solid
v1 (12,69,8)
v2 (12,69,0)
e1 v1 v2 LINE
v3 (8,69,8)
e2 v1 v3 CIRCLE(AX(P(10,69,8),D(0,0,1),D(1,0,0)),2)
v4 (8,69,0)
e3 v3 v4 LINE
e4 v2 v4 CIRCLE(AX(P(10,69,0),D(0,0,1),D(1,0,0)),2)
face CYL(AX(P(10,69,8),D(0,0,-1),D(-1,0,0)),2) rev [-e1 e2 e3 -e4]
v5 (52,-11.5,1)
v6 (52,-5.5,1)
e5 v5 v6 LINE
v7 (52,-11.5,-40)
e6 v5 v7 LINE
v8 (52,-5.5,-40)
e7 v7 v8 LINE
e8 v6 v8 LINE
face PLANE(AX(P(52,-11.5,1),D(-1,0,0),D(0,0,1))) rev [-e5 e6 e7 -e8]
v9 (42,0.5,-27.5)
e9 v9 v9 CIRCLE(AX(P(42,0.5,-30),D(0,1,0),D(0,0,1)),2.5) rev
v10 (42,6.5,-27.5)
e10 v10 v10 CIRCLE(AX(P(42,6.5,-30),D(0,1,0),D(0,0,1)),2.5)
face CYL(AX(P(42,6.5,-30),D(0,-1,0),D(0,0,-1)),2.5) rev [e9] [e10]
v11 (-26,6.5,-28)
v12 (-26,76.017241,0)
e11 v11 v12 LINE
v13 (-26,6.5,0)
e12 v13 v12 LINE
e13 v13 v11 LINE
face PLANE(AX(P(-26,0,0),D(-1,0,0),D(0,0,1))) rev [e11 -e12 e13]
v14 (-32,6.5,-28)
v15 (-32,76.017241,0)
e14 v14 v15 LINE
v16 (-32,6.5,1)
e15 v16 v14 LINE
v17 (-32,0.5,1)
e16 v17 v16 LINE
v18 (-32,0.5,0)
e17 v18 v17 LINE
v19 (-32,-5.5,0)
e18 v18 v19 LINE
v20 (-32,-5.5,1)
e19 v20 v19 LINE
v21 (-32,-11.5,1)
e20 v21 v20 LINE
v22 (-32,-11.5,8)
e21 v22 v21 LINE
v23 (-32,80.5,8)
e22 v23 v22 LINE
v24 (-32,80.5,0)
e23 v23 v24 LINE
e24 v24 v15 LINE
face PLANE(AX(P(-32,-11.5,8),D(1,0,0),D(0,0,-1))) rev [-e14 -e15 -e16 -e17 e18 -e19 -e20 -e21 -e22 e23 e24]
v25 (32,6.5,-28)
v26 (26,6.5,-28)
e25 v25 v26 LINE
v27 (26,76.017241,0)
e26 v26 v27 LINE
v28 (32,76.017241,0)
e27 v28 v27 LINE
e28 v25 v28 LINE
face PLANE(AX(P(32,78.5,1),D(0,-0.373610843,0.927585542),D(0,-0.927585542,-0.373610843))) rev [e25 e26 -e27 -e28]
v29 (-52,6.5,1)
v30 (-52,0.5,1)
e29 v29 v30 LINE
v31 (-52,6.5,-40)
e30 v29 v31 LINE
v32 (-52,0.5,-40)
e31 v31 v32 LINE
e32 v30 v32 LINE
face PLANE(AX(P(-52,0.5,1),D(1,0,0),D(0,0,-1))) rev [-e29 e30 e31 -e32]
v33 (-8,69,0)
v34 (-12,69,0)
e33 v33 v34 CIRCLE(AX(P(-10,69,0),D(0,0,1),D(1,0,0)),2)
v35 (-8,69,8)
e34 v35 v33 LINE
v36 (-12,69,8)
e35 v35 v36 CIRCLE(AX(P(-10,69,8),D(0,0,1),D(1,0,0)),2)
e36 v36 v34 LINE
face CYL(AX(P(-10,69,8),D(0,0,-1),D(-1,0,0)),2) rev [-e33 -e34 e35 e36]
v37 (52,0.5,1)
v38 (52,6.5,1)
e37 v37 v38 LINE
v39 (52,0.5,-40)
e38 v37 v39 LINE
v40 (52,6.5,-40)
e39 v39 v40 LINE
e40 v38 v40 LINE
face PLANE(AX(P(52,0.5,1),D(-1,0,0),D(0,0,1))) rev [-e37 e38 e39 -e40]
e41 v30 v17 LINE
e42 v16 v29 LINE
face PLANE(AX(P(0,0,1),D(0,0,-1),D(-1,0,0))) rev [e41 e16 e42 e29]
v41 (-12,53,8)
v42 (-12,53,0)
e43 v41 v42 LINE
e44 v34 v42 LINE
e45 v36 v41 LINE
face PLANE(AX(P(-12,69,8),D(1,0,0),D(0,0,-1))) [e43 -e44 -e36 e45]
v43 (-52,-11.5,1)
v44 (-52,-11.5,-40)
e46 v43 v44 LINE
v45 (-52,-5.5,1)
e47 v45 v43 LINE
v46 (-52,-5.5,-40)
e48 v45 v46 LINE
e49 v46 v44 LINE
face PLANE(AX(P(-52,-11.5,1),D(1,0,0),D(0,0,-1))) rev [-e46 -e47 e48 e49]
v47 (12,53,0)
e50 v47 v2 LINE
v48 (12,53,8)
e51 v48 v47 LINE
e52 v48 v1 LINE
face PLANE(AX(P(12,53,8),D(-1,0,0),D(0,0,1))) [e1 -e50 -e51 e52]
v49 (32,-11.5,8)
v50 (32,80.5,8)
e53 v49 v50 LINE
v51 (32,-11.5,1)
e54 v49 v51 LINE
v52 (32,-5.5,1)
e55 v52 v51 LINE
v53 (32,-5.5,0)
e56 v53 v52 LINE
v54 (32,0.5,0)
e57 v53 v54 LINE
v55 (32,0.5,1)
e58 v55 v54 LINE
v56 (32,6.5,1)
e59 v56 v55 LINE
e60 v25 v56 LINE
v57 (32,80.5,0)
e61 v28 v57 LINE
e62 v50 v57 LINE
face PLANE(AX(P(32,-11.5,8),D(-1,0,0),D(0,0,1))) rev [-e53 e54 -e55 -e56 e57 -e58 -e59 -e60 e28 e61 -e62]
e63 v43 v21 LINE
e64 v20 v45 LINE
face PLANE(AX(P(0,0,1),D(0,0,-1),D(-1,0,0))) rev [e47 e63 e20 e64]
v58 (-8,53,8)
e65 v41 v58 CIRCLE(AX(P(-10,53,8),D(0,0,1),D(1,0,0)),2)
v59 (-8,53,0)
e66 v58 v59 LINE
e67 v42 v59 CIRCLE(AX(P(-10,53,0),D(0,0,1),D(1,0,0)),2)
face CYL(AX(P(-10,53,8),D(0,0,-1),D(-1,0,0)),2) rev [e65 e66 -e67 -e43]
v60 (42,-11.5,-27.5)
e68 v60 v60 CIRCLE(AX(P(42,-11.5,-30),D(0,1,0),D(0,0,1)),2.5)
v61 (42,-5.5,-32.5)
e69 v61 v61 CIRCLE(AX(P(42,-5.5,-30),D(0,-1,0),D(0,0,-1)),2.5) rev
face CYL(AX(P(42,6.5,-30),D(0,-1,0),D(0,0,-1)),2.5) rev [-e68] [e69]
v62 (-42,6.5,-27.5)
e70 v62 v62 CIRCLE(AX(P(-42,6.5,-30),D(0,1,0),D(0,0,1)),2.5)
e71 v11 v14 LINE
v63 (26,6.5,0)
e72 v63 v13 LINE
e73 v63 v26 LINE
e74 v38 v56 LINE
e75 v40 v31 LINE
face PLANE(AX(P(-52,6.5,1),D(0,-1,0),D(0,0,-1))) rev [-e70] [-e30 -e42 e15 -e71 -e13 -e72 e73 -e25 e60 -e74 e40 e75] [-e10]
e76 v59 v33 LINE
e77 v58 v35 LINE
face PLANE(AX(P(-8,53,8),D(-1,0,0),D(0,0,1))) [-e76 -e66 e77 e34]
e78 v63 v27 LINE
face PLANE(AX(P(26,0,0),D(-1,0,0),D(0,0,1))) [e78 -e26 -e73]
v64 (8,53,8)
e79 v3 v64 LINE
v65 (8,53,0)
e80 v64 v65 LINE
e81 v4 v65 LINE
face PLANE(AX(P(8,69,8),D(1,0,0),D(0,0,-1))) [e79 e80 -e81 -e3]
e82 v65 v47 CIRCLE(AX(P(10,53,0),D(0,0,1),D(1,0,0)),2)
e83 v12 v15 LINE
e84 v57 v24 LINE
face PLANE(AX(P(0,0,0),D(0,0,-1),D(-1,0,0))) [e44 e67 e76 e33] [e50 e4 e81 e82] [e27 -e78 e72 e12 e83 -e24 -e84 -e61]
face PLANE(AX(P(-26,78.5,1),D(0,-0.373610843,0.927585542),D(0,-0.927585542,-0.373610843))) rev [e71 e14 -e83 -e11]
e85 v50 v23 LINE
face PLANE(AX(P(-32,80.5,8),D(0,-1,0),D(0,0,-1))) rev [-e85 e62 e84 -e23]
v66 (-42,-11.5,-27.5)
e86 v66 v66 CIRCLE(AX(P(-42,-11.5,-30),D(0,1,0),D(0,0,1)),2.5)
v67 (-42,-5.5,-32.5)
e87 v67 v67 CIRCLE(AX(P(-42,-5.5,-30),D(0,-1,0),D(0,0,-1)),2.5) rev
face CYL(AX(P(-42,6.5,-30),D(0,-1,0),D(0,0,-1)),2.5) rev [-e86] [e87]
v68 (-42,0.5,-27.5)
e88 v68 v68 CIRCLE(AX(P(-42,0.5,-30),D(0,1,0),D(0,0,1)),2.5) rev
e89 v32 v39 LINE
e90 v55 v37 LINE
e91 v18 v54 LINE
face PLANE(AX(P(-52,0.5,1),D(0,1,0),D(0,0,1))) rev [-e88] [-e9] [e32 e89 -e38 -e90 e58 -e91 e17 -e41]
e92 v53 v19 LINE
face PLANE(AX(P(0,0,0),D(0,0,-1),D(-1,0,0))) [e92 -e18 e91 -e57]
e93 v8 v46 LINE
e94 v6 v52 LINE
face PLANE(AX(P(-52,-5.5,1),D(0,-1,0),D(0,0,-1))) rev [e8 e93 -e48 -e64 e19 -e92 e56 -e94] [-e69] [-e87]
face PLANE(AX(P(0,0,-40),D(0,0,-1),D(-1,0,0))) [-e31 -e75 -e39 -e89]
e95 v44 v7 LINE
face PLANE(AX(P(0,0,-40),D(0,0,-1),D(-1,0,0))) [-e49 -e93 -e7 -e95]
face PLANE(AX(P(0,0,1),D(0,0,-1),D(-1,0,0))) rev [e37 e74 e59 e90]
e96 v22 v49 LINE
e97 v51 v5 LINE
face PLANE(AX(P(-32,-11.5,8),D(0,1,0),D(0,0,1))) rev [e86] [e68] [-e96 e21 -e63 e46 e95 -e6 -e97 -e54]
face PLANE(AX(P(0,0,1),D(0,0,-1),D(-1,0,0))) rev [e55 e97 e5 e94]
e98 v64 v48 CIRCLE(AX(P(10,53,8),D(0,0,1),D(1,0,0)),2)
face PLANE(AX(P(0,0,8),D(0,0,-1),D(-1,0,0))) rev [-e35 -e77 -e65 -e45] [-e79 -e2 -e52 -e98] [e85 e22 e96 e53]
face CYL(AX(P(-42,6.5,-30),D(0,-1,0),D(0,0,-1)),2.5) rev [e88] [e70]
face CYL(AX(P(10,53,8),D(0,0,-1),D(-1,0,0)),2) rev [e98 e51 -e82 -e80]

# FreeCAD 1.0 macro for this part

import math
import FreeCAD as App
import Part
import Sketcher
Q = App.Units.Quantity

doc = App.newDocument("Part")
body = doc.addObject("PartDesign::Body", "Body")

# Sketch on XY plane
sketch1 = body.newObject("Sketcher::SketchObject", "Sketch")
sketch1.AttachmentSupport = (doc.getObject("XY_Plane"), [""])
sketch1.MapMode = "FlatFace"
sketch1.addGeometry(Part.LineSegment(App.Vector(-32, 80, 0), App.Vector(-32, -12, 0)), False)
sketch1.addGeometry(Part.LineSegment(App.Vector(-32, -12, 0), App.Vector(32, -12, 0)), False)
sketch1.addGeometry(Part.LineSegment(App.Vector(32, -12, 0), App.Vector(32, 80, 0)), False)
sketch1.addGeometry(Part.LineSegment(App.Vector(32, 80, 0), App.Vector(-32, 80, 0)), False)
sketch1.addConstraint(Sketcher.Constraint("Coincident", 0, 2, 1, 1))
sketch1.addConstraint(Sketcher.Constraint("Coincident", 1, 2, 2, 1))
sketch1.addConstraint(Sketcher.Constraint("Coincident", 2, 2, 3, 1))
sketch1.addConstraint(Sketcher.Constraint("Coincident", 3, 2, 0, 1))
sketch1.addConstraint(Sketcher.Constraint("Vertical", 0))
sketch1.addConstraint(Sketcher.Constraint("Horizontal", 1))
sketch1.addConstraint(Sketcher.Constraint("Vertical", 2))
sketch1.addConstraint(Sketcher.Constraint("Horizontal", 3))
sketch1.addConstraint(Sketcher.Constraint("DistanceX", 1, 1, 1, 2, Q("64 mm")))
sketch1.addConstraint(Sketcher.Constraint("DistanceY", 0, 2, 0, 1, Q("92 mm")))
sketch1.addConstraint(Sketcher.Constraint("DistanceX", 0, 2, -1, 1, Q("32 mm")))
sketch1.addConstraint(Sketcher.Constraint("DistanceY", 0, 2, -1, 1, Q("11.5 mm")))
pad1 = body.newObject("PartDesign::Pad", "Pad")
pad1.Profile = sketch1
pad1.Length = 8

# Sketch on XY plane
sketch2 = body.newObject("Sketcher::SketchObject", "Sketch001")
sketch2.AttachmentSupport = (doc.getObject("XY_Plane"), [""])
sketch2.MapMode = "FlatFace"
sketch2.AttachmentOffset = App.Placement(App.Vector(0, 0, -40), App.Rotation())
sketch2.addGeometry(Part.LineSegment(App.Vector(-52, -6, 0), App.Vector(-52, -12, 0)), False)
sketch2.addGeometry(Part.LineSegment(App.Vector(-52, -12, 0), App.Vector(52, -12, 0)), False)
sketch2.addGeometry(Part.LineSegment(App.Vector(52, -12, 0), App.Vector(52, -6, 0)), False)
sketch2.addGeometry(Part.LineSegment(App.Vector(52, -6, 0), App.Vector(-52, -6, 0)), False)
sketch2.addConstraint(Sketcher.Constraint("Coincident", 0, 2, 1, 1))
sketch2.addConstraint(Sketcher.Constraint("Coincident", 1, 2, 2, 1))
sketch2.addConstraint(Sketcher.Constraint("Coincident", 2, 2, 3, 1))
sketch2.addConstraint(Sketcher.Constraint("Coincident", 3, 2, 0, 1))
sketch2.addConstraint(Sketcher.Constraint("Vertical", 0))
sketch2.addConstraint(Sketcher.Constraint("Horizontal", 1))
sketch2.addConstraint(Sketcher.Constraint("Vertical", 2))
sketch2.addConstraint(Sketcher.Constraint("Horizontal", 3))
sketch2.addConstraint(Sketcher.Constraint("DistanceX", 1, 1, 1, 2, Q("104 mm")))
sketch2.addConstraint(Sketcher.Constraint("DistanceY", 0, 2, 0, 1, Q("6 mm")))
sketch2.addConstraint(Sketcher.Constraint("DistanceX", 0, 2, -1, 1, Q("52 mm")))
sketch2.addConstraint(Sketcher.Constraint("DistanceY", 0, 2, -1, 1, Q("11.5 mm")))
pad2 = body.newObject("PartDesign::Pad", "Pad001")
pad2.Profile = sketch2
pad2.Length = 41

# Sketch on XY plane
sketch3 = body.newObject("Sketcher::SketchObject", "Sketch002")
sketch3.AttachmentSupport = (doc.getObject("XY_Plane"), [""])
sketch3.MapMode = "FlatFace"
sketch3.AttachmentOffset = App.Placement(App.Vector(0, 0, -40), App.Rotation())
sketch3.addGeometry(Part.LineSegment(App.Vector(-52, 6, 0), App.Vector(-52, 0, 0)), False)
sketch3.addGeometry(Part.LineSegment(App.Vector(-52, 0, 0), App.Vector(52, 0, 0)), False)
sketch3.addGeometry(Part.LineSegment(App.Vector(52, 0, 0), App.Vector(52, 6, 0)), False)
sketch3.addGeometry(Part.LineSegment(App.Vector(52, 6, 0), App.Vector(-52, 6, 0)), False)
sketch3.addConstraint(Sketcher.Constraint("Coincident", 0, 2, 1, 1))
sketch3.addConstraint(Sketcher.Constraint("Coincident", 1, 2, 2, 1))
sketch3.addConstraint(Sketcher.Constraint("Coincident", 2, 2, 3, 1))
sketch3.addConstraint(Sketcher.Constraint("Coincident", 3, 2, 0, 1))
sketch3.addConstraint(Sketcher.Constraint("Vertical", 0))
sketch3.addConstraint(Sketcher.Constraint("Horizontal", 1))
sketch3.addConstraint(Sketcher.Constraint("Vertical", 2))
sketch3.addConstraint(Sketcher.Constraint("Horizontal", 3))
sketch3.addConstraint(Sketcher.Constraint("DistanceX", 1, 1, 1, 2, Q("104 mm")))
sketch3.addConstraint(Sketcher.Constraint("DistanceY", 0, 2, 0, 1, Q("6 mm")))
sketch3.addConstraint(Sketcher.Constraint("DistanceX", 0, 2, -1, 1, Q("52 mm")))
sketch3.addConstraint(Sketcher.Constraint("DistanceY", -1, 1, 0, 2, Q("0.5 mm")))
pad3 = body.newObject("PartDesign::Pad", "Pad002")
pad3.Profile = sketch3
pad3.Length = 41

# Sketch on YZ plane
sketch4 = body.newObject("Sketcher::SketchObject", "Sketch003")
sketch4.AttachmentSupport = (doc.getObject("YZ_Plane"), [""])
sketch4.MapMode = "FlatFace"
sketch4.AttachmentOffset = App.Placement(App.Vector(0, 0, -32), App.Rotation())
sketch4.addGeometry(Part.LineSegment(App.Vector(6, 1, 0), App.Vector(6, -28, 0)), False)
sketch4.addGeometry(Part.LineSegment(App.Vector(6, -28, 0), App.Vector(78, 1, 0)), False)
sketch4.addGeometry(Part.LineSegment(App.Vector(78, 1, 0), App.Vector(6, 1, 0)), False)
sketch4.addConstraint(Sketcher.Constraint("Coincident", 0, 2, 1, 1))
sketch4.addConstraint(Sketcher.Constraint("Coincident", 1, 2, 2, 1))
sketch4.addConstraint(Sketcher.Constraint("Coincident", 2, 2, 0, 1))
sketch4.addConstraint(Sketcher.Constraint("Vertical", 0))
sketch4.addConstraint(Sketcher.Constraint("Horizontal", 2))
sketch4.addConstraint(Sketcher.Constraint("DistanceX", 2, 2, 2, 1, Q("72 mm")))
sketch4.addConstraint(Sketcher.Constraint("DistanceY", 0, 2, 0, 1, Q("29 mm")))
sketch4.addConstraint(Sketcher.Constraint("DistanceY", 0, 2, -1, 1, Q("28 mm")))
sketch4.addConstraint(Sketcher.Constraint("DistanceX", -1, 1, 0, 2, Q("6.5 mm")))
pad4 = body.newObject("PartDesign::Pad", "Pad003")
pad4.Profile = sketch4
pad4.Length = 6

# Sketch on YZ plane
sketch5 = body.newObject("Sketcher::SketchObject", "Sketch004")
sketch5.AttachmentSupport = (doc.getObject("YZ_Plane"), [""])
sketch5.MapMode = "FlatFace"
sketch5.AttachmentOffset = App.Placement(App.Vector(0, 0, 26), App.Rotation())
sketch5.addGeometry(Part.LineSegment(App.Vector(6, 1, 0), App.Vector(6, -28, 0)), False)
sketch5.addGeometry(Part.LineSegment(App.Vector(6, -28, 0), App.Vector(78, 1, 0)), False)
sketch5.addGeometry(Part.LineSegment(App.Vector(78, 1, 0), App.Vector(6, 1, 0)), False)
sketch5.addConstraint(Sketcher.Constraint("Coincident", 0, 2, 1, 1))
sketch5.addConstraint(Sketcher.Constraint("Coincident", 1, 2, 2, 1))
sketch5.addConstraint(Sketcher.Constraint("Coincident", 2, 2, 0, 1))
sketch5.addConstraint(Sketcher.Constraint("Vertical", 0))
sketch5.addConstraint(Sketcher.Constraint("Horizontal", 2))
sketch5.addConstraint(Sketcher.Constraint("DistanceX", 2, 2, 2, 1, Q("72 mm")))
sketch5.addConstraint(Sketcher.Constraint("DistanceY", 0, 2, 0, 1, Q("29 mm")))
sketch5.addConstraint(Sketcher.Constraint("DistanceY", 0, 2, -1, 1, Q("28 mm")))
sketch5.addConstraint(Sketcher.Constraint("DistanceX", -1, 1, 0, 2, Q("6.5 mm")))
pad5 = body.newObject("PartDesign::Pad", "Pad004")
pad5.Profile = sketch5
pad5.Length = 6

# Sketch on XY plane
sketch6 = body.newObject("Sketcher::SketchObject", "Sketch005")
sketch6.AttachmentSupport = (doc.getObject("XY_Plane"), [""])
sketch6.MapMode = "FlatFace"
sketch6.addGeometry(Part.LineSegment(App.Vector(-8, 53, 0), App.Vector(-8, 69, 0)), False)
sketch6.addGeometry(Part.ArcOfCircle(Part.Circle(App.Vector(-10, 69, 0), App.Vector(0, 0, 1), 2), math.radians(0), math.radians(180)), False)
sketch6.addGeometry(Part.LineSegment(App.Vector(-12, 69, 0), App.Vector(-12, 53, 0)), False)
sketch6.addGeometry(Part.ArcOfCircle(Part.Circle(App.Vector(-10, 53, 0), App.Vector(0, 0, 1), 2), math.radians(180), math.radians(360)), False)
sketch6.addGeometry(Part.LineSegment(App.Vector(12, 53, 0), App.Vector(12, 69, 0)), False)
sketch6.addGeometry(Part.ArcOfCircle(Part.Circle(App.Vector(10, 69, 0), App.Vector(0, 0, 1), 2), math.radians(0), math.radians(180)), False)
sketch6.addGeometry(Part.LineSegment(App.Vector(8, 69, 0), App.Vector(8, 53, 0)), False)
sketch6.addGeometry(Part.ArcOfCircle(Part.Circle(App.Vector(10, 53, 0), App.Vector(0, 0, 1), 2), math.radians(180), math.radians(360)), False)
sketch6.addConstraint(Sketcher.Constraint("Tangent", 0, 2, 1, 1))
sketch6.addConstraint(Sketcher.Constraint("Tangent", 1, 2, 2, 1))
sketch6.addConstraint(Sketcher.Constraint("Tangent", 2, 2, 3, 1))
sketch6.addConstraint(Sketcher.Constraint("Tangent", 3, 2, 0, 1))
sketch6.addConstraint(Sketcher.Constraint("Tangent", 4, 2, 5, 1))
sketch6.addConstraint(Sketcher.Constraint("Tangent", 5, 2, 6, 1))
sketch6.addConstraint(Sketcher.Constraint("Tangent", 6, 2, 7, 1))
sketch6.addConstraint(Sketcher.Constraint("Tangent", 7, 2, 4, 1))
sketch6.addConstraint(Sketcher.Constraint("Vertical", 0))
sketch6.addConstraint(Sketcher.Constraint("Vertical", 2))
sketch6.addConstraint(Sketcher.Constraint("Vertical", 4))
sketch6.addConstraint(Sketcher.Constraint("Vertical", 6))
sketch6.addConstraint(Sketcher.Constraint("Equal", 3, 5))
sketch6.addConstraint(Sketcher.Constraint("Symmetric", 1, 3, 5, 3, -2))
sketch6.addConstraint(Sketcher.Constraint("Horizontal", 3, 3, 7, 3))
sketch6.addConstraint(Sketcher.Constraint("Radius", 1, Q("2 mm")))
sketch6.addConstraint(Sketcher.Constraint("DistanceY", 0, 1, 0, 2, Q("16 mm")))
sketch6.addConstraint(Sketcher.Constraint("DistanceX", 1, 3, -1, 1, Q("10 mm")))
sketch6.addConstraint(Sketcher.Constraint("DistanceY", -1, 1, 1, 3, Q("69 mm")))
pocket1 = body.newObject("PartDesign::Pocket", "Pocket")
pocket1.Profile = sketch6
pocket1.Length = 8
pocket1.Reversed = True

# Sketch on XZ plane
sketch7 = body.newObject("Sketcher::SketchObject", "Sketch006")
sketch7.AttachmentSupport = (doc.getObject("XZ_Plane"), [""])
sketch7.MapMode = "FlatFace"
sketch7.AttachmentOffset = App.Placement(App.Vector(0, 0, 11.5), App.Rotation())
sketch7.addGeometry(Part.Circle(App.Vector(-42, -30, 0), App.Vector(0, 0, 1), 2.5), False)
sketch7.addGeometry(Part.Circle(App.Vector(42, -30, 0), App.Vector(0, 0, 1), 2.5), False)
sketch7.addConstraint(Sketcher.Constraint("Equal", 0, 1))
sketch7.addConstraint(Sketcher.Constraint("Symmetric", 0, 3, 1, 3, -2))
sketch7.addConstraint(Sketcher.Constraint("Diameter", 0, Q("5 mm")))
sketch7.addConstraint(Sketcher.Constraint("DistanceX", 0, 3, -1, 1, Q("42 mm")))
sketch7.addConstraint(Sketcher.Constraint("DistanceY", 0, 3, -1, 1, Q("30 mm")))
pocket2 = body.newObject("PartDesign::Pocket", "Pocket001")
pocket2.Profile = sketch7
pocket2.Length = 18

doc.recompute()
